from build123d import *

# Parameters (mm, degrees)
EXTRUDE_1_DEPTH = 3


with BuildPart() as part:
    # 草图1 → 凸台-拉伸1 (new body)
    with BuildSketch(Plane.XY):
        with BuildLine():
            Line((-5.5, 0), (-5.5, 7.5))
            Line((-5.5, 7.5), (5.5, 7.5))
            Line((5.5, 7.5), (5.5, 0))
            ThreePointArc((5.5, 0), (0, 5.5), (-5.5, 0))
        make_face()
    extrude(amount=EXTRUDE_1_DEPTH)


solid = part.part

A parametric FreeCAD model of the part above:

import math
import FreeCAD as App
import Part
import Sketcher
Q = App.Units.Quantity

doc = App.newDocument("Part")
params = doc.addObject("Spreadsheet::Sheet", "Params")
for row, (alias, value) in enumerate([
    ("sketch1_radius", "5.5 mm"),
    ("sketch1_height", "7.5 mm"),
    ("pad1_length", "3 mm"),
], start=1):
    params.set(f"A{row}", alias)
    params.set(f"B{row}", "=" + value)
    params.setAlias(f"B{row}", alias)

body = doc.addObject("PartDesign::Body", "Body")

sketch1 = body.newObject("Sketcher::SketchObject", "Sketch")
sketch1.AttachmentSupport = (doc.getObject("XY_Plane"), [""])
sketch1.MapMode = "FlatFace"
sketch1.addGeometry([
    Part.LineSegment(App.Vector(-6, 8, 0), App.Vector(-6, 0, 0)),
    Part.ArcOfCircle(Part.Circle(App.Vector(0, 0, 0), App.Vector(0, 0, 1), 6), math.radians(0), math.radians(180)),
    Part.LineSegment(App.Vector(6, 0, 0), App.Vector(6, 8, 0)),
    Part.LineSegment(App.Vector(6, 8, 0), App.Vector(-6, 8, 0)),
], False)
sketch1.addConstraint([
    Sketcher.Constraint("Tangent", 0, 2, 1, 2),
    Sketcher.Constraint("Tangent", 1, 1, 2, 1),
    Sketcher.Constraint("Coincident", 2, 2, 3, 1),
    Sketcher.Constraint("Coincident", 3, 2, 0, 1),
    Sketcher.Constraint("Vertical", 0),
    Sketcher.Constraint("Vertical", 2),
    Sketcher.Constraint("Horizontal", 3),
    Sketcher.Constraint("Coincident", 1, 3, -1, 1),
    Sketcher.Constraint("Radius", 1, Q("5.5 mm")),
    Sketcher.Constraint("DistanceY", 0, 2, 0, 1, Q("7.5 mm")),
])
sketch1.setExpression("Constraints[8]", "Params.sketch1_radius")
sketch1.setExpression("Constraints[9]", "Params.sketch1_height")
pad1 = body.newObject("PartDesign::Pad", "Pad")
pad1.Profile = sketch1
pad1.setExpression("Length", "Params.pad1_length")

doc.recompute()
